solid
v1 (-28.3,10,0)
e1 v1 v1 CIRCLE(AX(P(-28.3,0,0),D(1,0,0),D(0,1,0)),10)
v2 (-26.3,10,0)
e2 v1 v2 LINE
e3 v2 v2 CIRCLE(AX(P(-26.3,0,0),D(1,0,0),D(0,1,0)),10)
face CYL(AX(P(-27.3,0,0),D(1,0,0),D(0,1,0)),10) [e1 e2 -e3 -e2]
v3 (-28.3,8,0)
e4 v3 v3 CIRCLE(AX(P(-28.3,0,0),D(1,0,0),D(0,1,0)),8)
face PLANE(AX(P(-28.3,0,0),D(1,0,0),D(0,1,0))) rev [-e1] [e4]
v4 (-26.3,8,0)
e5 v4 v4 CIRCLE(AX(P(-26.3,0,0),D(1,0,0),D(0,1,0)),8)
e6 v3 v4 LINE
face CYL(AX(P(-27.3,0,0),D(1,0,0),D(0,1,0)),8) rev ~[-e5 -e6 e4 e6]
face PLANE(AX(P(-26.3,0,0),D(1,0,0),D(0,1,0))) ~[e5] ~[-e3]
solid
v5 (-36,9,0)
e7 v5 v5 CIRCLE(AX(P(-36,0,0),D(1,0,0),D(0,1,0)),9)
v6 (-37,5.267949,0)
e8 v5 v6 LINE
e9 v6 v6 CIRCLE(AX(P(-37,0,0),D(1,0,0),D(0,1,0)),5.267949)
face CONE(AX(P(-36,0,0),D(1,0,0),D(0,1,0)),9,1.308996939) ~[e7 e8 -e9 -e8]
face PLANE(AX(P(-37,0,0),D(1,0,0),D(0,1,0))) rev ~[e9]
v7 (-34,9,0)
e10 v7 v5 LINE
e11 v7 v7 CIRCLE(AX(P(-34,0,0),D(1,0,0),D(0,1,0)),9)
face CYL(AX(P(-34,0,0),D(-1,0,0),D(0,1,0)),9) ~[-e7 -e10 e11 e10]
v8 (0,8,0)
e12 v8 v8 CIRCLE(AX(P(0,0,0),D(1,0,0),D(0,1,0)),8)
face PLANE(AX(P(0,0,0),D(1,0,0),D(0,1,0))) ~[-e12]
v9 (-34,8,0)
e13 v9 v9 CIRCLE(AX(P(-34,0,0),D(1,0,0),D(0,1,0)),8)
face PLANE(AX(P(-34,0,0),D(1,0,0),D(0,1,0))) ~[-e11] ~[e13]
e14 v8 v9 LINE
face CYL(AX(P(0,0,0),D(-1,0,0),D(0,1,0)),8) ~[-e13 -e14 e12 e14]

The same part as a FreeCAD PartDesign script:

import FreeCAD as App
import Part
import Sketcher
Q = App.Units.Quantity

doc = App.newDocument("Part")
params = doc.addObject("Spreadsheet::Sheet", "Params")
for row, (alias, value) in enumerate([
    ("sketch1_width", "37 mm"),
    ("sketch1_width2", "34 mm"),
    ("sketch1_width3", "2 mm"),
    ("sketch1_height", "8 mm"),
    ("sketch1_height2", "1 mm"),
    ("revolution_angle", "360 deg"),
    ("sketch2_width", "2 mm"),
    ("revolution2_angle", "360 deg"),
], start=1):
    params.set(f"A{row}", alias)
    params.set(f"B{row}", "=" + value)
    params.setAlias(f"B{row}", alias)

body = doc.addObject("PartDesign::Body", "Body")

sketch1 = body.newObject("Sketcher::SketchObject", "Sketch")
sketch1.AttachmentSupport = (doc.getObject("XY_Plane"), [""])
sketch1.MapMode = "FlatFace"
sketch1.addGeometry([
    Part.LineSegment(App.Vector(-37, 5.3, 0), App.Vector(-37, 0, 0)),
    Part.LineSegment(App.Vector(-37, 0, 0), App.Vector(0, 0, 0)),
    Part.LineSegment(App.Vector(0, 0, 0), App.Vector(0, 8, 0)),
    Part.LineSegment(App.Vector(0, 8, 0), App.Vector(-34, 8, 0)),
    Part.LineSegment(App.Vector(-34, 8, 0), App.Vector(-34, 9, 0)),
    Part.LineSegment(App.Vector(-34, 9, 0), App.Vector(-36, 9, 0)),
    Part.LineSegment(App.Vector(-36, 9, 0), App.Vector(-37, 5.3, 0)),
], False)
sketch1.addConstraint([
    Sketcher.Constraint("Coincident", 0, 2, 1, 1),
    Sketcher.Constraint("Coincident", 1, 2, 2, 1),
    Sketcher.Constraint("Coincident", 2, 2, 3, 1),
    Sketcher.Constraint("Coincident", 3, 2, 4, 1),
    Sketcher.Constraint("Coincident", 4, 2, 5, 1),
    Sketcher.Constraint("Coincident", 5, 2, 6, 1),
    Sketcher.Constraint("Coincident", 6, 2, 0, 1),
    Sketcher.Constraint("Vertical", 0),
    Sketcher.Constraint("Horizontal", 1),
    Sketcher.Constraint("Vertical", 2),
    Sketcher.Constraint("Horizontal", 3),
    Sketcher.Constraint("Vertical", 4),
    Sketcher.Constraint("Horizontal", 5),
    Sketcher.Constraint("Coincident", 1, 2, -1, 1),
    Sketcher.Constraint("DistanceX", 1, 1, 1, 2, 37.0),
    Sketcher.Constraint("DistanceX", 3, 2, 3, 1, 34.0),
    Sketcher.Constraint("DistanceX", 5, 2, 5, 1, 2.0),
    Sketcher.Constraint("DistanceY", 2, 1, 2, 2, 8.0),
    Sketcher.Constraint("DistanceY", 4, 1, 4, 2, 1.0),
    Sketcher.Constraint("Angle", 6, Q("-105 deg")),
])
sketch1.setExpression("Constraints[14]", "Params.sketch1_width")
sketch1.setExpression("Constraints[15]", "Params.sketch1_width2")
sketch1.setExpression("Constraints[16]", "Params.sketch1_width3")
sketch1.setExpression("Constraints[17]", "Params.sketch1_height")
sketch1.setExpression("Constraints[18]", "Params.sketch1_height2")
revolution = body.newObject("PartDesign::Revolution", "Revolution")
revolution.Profile = sketch1
revolution.ReferenceAxis = (sketch1, ["H_Axis"])
revolution.setExpression("Angle", "Params.revolution_angle")
body2 = doc.addObject("PartDesign::Body", "Body001")

sketch2 = body2.newObject("Sketcher::SketchObject", "Sketch001")
sketch2.AttachmentSupport = (doc.getObject("XY_Plane001"), [""])
sketch2.MapMode = "FlatFace"
sketch2.addGeometry([
    Part.LineSegment(App.Vector(-28.3, 10, 0), App.Vector(-28.3, 8, 0)),
    Part.LineSegment(App.Vector(-28.3, 8, 0), App.Vector(-26.3, 8, 0)),
    Part.LineSegment(App.Vector(-26.3, 8, 0), App.Vector(-26.3, 10, 0)),
    Part.LineSegment(App.Vector(-26.3, 10, 0), App.Vector(-28.3, 10, 0)),
], False)
sketch2.addConstraint([
    Sketcher.Constraint("Coincident", 0, 2, 1, 1),
    Sketcher.Constraint("Coincident", 1, 2, 2, 1),
    Sketcher.Constraint("Coincident", 2, 2, 3, 1),
    Sketcher.Constraint("Coincident", 3, 2, 0, 1),
    Sketcher.Constraint("Vertical", 0),
    Sketcher.Constraint("Horizontal", 1),
    Sketcher.Constraint("Vertical", 2),
    Sketcher.Constraint("Horizontal", 3),
    Sketcher.Constraint("Equal", 3, 0),
    Sketcher.Constraint("DistanceX", 1, 1, 1, 2, 2.0),
    Sketcher.Constraint("DistanceY", -1, 1, 0, 2, 8.0),
    Sketcher.Constraint("DistanceX", 0, 2, -1, 1, 28.3),
])
sketch2.setExpression("Constraints[9]", "Params.sketch2_width")
revolution2 = body2.newObject("PartDesign::Revolution", "Revolution001")
revolution2.Profile = sketch2
revolution2.ReferenceAxis = (sketch2, ["H_Axis"])
revolution2.setExpression("Angle", "Params.revolution2_angle")

doc.recompute()
